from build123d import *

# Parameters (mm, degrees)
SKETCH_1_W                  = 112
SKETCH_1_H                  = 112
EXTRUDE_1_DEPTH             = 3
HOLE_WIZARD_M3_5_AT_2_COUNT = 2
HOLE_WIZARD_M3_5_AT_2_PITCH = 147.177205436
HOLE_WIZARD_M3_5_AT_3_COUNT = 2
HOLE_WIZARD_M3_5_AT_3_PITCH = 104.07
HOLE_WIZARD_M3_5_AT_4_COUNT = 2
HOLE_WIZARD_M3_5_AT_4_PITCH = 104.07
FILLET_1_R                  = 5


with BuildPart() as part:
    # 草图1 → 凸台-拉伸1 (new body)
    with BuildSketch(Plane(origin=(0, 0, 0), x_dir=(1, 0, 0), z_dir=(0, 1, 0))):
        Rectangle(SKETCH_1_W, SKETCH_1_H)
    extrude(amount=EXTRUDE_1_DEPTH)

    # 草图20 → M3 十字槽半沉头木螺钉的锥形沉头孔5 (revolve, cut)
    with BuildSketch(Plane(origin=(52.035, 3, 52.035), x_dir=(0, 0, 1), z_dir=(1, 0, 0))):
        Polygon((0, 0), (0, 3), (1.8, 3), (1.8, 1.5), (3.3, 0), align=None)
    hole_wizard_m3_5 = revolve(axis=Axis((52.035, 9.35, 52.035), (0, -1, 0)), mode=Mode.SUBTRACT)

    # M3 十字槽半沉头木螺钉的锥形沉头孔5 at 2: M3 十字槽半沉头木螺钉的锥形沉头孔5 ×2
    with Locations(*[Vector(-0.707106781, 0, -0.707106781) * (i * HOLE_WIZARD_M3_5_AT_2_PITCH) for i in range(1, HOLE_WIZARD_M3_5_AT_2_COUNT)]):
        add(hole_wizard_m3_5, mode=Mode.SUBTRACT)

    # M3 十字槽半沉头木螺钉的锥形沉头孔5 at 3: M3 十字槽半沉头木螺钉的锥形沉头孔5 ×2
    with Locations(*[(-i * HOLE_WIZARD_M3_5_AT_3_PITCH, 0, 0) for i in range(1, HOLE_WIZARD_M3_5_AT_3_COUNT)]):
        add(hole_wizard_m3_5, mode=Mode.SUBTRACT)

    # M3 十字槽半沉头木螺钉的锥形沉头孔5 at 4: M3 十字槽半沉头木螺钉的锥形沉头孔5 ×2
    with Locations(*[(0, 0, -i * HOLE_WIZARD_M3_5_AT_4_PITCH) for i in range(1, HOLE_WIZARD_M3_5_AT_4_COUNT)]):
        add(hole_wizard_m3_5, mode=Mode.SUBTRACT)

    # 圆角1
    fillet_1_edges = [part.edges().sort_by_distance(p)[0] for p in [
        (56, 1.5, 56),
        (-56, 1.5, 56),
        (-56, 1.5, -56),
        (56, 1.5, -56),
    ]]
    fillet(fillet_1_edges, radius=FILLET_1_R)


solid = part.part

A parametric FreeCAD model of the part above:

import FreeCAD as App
import Part
import Sketcher
from FreeCAD import Vector
Q = App.Units.Quantity


def edges_at(feature, points):
    """Names of the edges that pass closest to the given points."""
    edges = feature.Shape.Edges
    near = lambda p: min(range(len(edges)), key=lambda i: edges[i].distToShape(Part.Vertex(*p))[0])
    return sorted({f"Edge{near(p) + 1}" for p in points})

doc = App.newDocument("Part")
body = doc.addObject("PartDesign::Body", "Body")

sketch1 = body.newObject("Sketcher::SketchObject", "Sketch")
sketch1.AttachmentSupport = (doc.getObject("XZ_Plane"), [""])
sketch1.MapMode = "FlatFace"
sketch1.addGeometry(Part.LineSegment(Vector(-56, -56, 0), Vector(-56, 56, 0)), False)
sketch1.addGeometry(Part.LineSegment(Vector(-56, 56, 0), Vector(56, 56, 0)), False)
sketch1.addGeometry(Part.LineSegment(Vector(56, 56, 0), Vector(56, -56, 0)), False)
sketch1.addGeometry(Part.LineSegment(Vector(56, -56, 0), Vector(-56, -56, 0)), False)
sketch1.addConstraint(Sketcher.Constraint("Coincident", 0, 2, 1, 1))
sketch1.addConstraint(Sketcher.Constraint("Coincident", 1, 2, 2, 1))
sketch1.addConstraint(Sketcher.Constraint("Coincident", 2, 2, 3, 1))
sketch1.addConstraint(Sketcher.Constraint("Coincident", 3, 2, 0, 1))
sketch1.addConstraint(Sketcher.Constraint("Vertical", 0))
sketch1.addConstraint(Sketcher.Constraint("Horizontal", 1))
sketch1.addConstraint(Sketcher.Constraint("Vertical", 2))
sketch1.addConstraint(Sketcher.Constraint("Horizontal", 3))
sketch1.addConstraint(Sketcher.Constraint("Symmetric", 0, 2, 2, 2, -1, 1))
sketch1.addConstraint(Sketcher.Constraint("Equal", 3, 0))
sketch1.addConstraint(Sketcher.Constraint("DistanceX", 1, 1, 1, 2, 112.0))
pad1 = body.newObject("PartDesign::Pad", "Pad")
pad1.Profile = sketch1
pad1.Length = 3
pad1.Reversed = True

sketch2 = body.newObject("Sketcher::SketchObject", "Sketch001")
sketch2.AttachmentSupport = (doc.getObject("YZ_Plane"), [""])
sketch2.MapMode = "FlatFace"
sketch2.AttachmentOffset = App.Placement(Vector(0, 0, 52.035), App.Rotation())
sketch2.addGeometry(Part.LineSegment(Vector(0, 52, 0), Vector(3, 52, 0)), False)
sketch2.addGeometry(Part.LineSegment(Vector(3, 52, 0), Vector(3, 55.3, 0)), False)
sketch2.addGeometry(Part.LineSegment(Vector(3, 55.3, 0), Vector(1.5, 53.8, 0)), False)
sketch2.addGeometry(Part.LineSegment(Vector(1.5, 53.8, 0), Vector(0, 53.8, 0)), False)
sketch2.addGeometry(Part.LineSegment(Vector(0, 53.8, 0), Vector(0, 52, 0)), False)
sketch2.addGeometry(Part.LineSegment(Vector(3, 52, 0), Vector(0, 52, 0)), True)
sketch2.addConstraint(Sketcher.Constraint("Coincident", 0, 2, 1, 1))
sketch2.addConstraint(Sketcher.Constraint("Coincident", 1, 2, 2, 1))
sketch2.addConstraint(Sketcher.Constraint("Coincident", 2, 2, 3, 1))
sketch2.addConstraint(Sketcher.Constraint("Coincident", 3, 2, 4, 1))
sketch2.addConstraint(Sketcher.Constraint("Coincident", 4, 2, 0, 1))
sketch2.addConstraint(Sketcher.Constraint("Horizontal", 0))
sketch2.addConstraint(Sketcher.Constraint("Vertical", 1))
sketch2.addConstraint(Sketcher.Constraint("Horizontal", 3))
sketch2.addConstraint(Sketcher.Constraint("Vertical", 4))
sketch2.addConstraint(Sketcher.Constraint("Horizontal", 5))
sketch2.addConstraint(Sketcher.Constraint("Coincident", 5, 1, 0, 2))
sketch2.addConstraint(Sketcher.Constraint("PointOnObject", 3, 2, -2))
sketch2.addConstraint(Sketcher.Constraint("PointOnObject", 5, 2, -2))
sketch2.addConstraint(Sketcher.Constraint("DistanceX", 0, 1, 0, 2, 3.0))
sketch2.addConstraint(Sketcher.Constraint("Angle", 2, Q("-135 deg")))
sketch2.addConstraint(Sketcher.Constraint("DistanceX", 3, 2, 3, 1, 1.5))
sketch2.addConstraint(Sketcher.Constraint("DistanceY", 1, 1, 1, 2, 3.3))
sketch2.addConstraint(Sketcher.Constraint("DistanceY", -1, 1, 0, 2, 52.035))
groove = body.newObject("PartDesign::Groove", "Groove")
groove.Profile = sketch2
groove.ReferenceAxis = (sketch2, ["Axis0"])
groove.Angle = 360
doc.recompute()

datumline = body.newObject("PartDesign::Line", "DatumLine")
datumline.Placement = App.Placement(Vector(0, 0, 0), App.Rotation(Vector(0, 0, 1), Vector(-0.707106781, 0, -0.707106781)))
linearpattern = body.newObject("PartDesign::LinearPattern", "LinearPattern")
linearpattern.Originals = [groove]
linearpattern.Direction = (datumline, [""])
linearpattern.Mode = "offset"
linearpattern.Offset = 147.177205
linearpattern.Occurrences = 2
body.Tip = linearpattern
doc.recompute()

linearpattern2 = body.newObject("PartDesign::LinearPattern", "LinearPattern001")
linearpattern2.Originals = [groove]
linearpattern2.Direction = (doc.getObject("X_Axis"), [""])
linearpattern2.Mode = "offset"
linearpattern2.Offset = 104.07
linearpattern2.Occurrences = 2
linearpattern2.Reversed = True
body.Tip = linearpattern2
doc.recompute()

linearpattern3 = body.newObject("PartDesign::LinearPattern", "LinearPattern002")
linearpattern3.Originals = [groove]
linearpattern3.Direction = (doc.getObject("Z_Axis"), [""])
linearpattern3.Mode = "offset"
linearpattern3.Offset = 104.07
linearpattern3.Occurrences = 2
linearpattern3.Reversed = True
body.Tip = linearpattern3
doc.recompute()

fillet = body.newObject("PartDesign::Fillet", "Fillet")
fillet.Base = (linearpattern3, edges_at(linearpattern3, [
    (56, 1.5, 56),
    (-56, 1.5, 56),
    (-56, 1.5, -56),
    (56, 1.5, -56),
]))
fillet.Radius = 5

doc.recompute()
